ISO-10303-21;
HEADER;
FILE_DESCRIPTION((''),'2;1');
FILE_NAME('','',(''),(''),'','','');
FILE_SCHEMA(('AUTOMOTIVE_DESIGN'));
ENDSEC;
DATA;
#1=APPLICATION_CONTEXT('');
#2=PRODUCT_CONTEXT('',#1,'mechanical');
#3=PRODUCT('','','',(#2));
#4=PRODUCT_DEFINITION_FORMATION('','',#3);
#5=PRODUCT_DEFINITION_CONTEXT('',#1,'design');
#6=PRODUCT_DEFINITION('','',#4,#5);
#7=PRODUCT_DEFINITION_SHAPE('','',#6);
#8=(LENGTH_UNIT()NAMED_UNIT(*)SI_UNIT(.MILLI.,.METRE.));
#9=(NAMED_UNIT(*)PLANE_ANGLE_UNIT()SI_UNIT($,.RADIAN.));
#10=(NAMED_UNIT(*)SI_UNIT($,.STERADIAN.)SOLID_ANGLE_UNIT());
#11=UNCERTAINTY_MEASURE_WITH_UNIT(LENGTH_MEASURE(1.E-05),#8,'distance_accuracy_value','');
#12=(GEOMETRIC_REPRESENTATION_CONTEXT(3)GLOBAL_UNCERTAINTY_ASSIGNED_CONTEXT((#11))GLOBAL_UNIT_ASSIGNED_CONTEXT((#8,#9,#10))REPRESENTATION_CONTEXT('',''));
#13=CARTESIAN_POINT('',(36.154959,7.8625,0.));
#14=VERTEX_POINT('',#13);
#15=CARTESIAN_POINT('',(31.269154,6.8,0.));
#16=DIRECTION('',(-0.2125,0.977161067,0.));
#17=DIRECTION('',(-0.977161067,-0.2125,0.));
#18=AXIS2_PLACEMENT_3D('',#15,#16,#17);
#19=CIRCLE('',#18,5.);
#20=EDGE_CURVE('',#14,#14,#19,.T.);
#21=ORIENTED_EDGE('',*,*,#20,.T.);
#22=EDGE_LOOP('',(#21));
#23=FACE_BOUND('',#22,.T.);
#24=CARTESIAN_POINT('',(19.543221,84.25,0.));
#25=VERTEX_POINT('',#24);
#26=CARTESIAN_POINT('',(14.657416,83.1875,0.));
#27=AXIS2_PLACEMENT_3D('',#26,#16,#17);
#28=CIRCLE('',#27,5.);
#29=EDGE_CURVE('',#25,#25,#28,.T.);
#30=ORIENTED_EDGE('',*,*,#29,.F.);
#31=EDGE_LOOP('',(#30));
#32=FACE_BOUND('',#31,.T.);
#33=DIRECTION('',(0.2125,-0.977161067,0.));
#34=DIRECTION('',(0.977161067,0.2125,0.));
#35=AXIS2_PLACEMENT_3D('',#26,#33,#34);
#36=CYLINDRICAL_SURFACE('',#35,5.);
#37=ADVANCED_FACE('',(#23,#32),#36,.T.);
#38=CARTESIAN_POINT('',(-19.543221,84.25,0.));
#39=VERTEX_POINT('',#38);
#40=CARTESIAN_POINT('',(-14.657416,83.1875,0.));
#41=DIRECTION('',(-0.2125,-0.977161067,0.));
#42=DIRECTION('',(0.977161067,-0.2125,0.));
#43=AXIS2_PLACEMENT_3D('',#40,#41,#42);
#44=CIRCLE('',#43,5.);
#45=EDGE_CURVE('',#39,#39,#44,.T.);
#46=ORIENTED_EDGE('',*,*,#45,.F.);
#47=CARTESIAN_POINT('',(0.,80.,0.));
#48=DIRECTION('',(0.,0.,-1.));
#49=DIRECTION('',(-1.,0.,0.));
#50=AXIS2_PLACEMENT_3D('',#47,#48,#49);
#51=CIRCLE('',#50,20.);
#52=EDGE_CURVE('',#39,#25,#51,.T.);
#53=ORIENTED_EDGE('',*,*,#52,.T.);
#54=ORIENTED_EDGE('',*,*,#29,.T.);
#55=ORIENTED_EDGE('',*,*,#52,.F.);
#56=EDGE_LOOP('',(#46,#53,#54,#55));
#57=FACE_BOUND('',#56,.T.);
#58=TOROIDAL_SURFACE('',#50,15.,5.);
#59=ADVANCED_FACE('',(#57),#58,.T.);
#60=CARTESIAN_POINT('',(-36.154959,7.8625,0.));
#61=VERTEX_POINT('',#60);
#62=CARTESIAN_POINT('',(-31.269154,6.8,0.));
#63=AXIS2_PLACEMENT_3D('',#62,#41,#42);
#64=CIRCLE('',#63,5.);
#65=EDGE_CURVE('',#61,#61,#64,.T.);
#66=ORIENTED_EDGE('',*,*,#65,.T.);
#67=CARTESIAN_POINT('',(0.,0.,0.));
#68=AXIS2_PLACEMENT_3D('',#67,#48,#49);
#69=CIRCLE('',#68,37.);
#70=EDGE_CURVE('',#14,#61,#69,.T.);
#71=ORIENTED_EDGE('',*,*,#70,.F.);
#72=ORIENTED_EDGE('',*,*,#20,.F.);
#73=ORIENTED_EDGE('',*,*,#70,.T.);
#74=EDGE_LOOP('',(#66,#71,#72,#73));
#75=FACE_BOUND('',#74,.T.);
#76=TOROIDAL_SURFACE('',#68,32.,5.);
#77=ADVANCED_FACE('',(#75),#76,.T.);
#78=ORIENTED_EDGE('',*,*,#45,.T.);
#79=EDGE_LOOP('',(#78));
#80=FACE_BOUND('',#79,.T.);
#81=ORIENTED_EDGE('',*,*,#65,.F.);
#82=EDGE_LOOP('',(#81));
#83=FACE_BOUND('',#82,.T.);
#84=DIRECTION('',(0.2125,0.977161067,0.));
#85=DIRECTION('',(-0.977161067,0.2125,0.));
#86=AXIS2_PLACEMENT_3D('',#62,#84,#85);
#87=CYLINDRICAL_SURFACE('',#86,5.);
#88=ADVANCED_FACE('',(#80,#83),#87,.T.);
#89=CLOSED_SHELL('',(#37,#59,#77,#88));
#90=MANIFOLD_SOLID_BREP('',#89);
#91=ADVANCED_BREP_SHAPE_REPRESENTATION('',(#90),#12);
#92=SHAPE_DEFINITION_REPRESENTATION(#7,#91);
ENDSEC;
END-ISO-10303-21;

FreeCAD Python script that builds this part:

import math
import FreeCAD as App
import Part
import Sketcher
Q = App.Units.Quantity

doc = App.newDocument("Part")
body = doc.addObject("PartDesign::Body", "Body")

sketch1 = doc.addObject("Sketcher::SketchObject", "Sketch")
body.addObject(sketch1)
sketch1.Placement = App.Placement(App.Vector(-31.269154, 6.8, 0), App.Rotation(App.Vector(-0.977161067, 0.2125, 0), App.Vector(0, 0, -1.000000001), App.Vector(-0.2125, -0.977161067, 0), "ZXY"))
sketch1.addGeometry(Part.Circle(App.Vector(0, 0, 0), App.Vector(0, 0, 1), 5), False)
sketch1.addConstraint(Sketcher.Constraint("Coincident", 0, 3, -1, 1))
sketch1.addConstraint(Sketcher.Constraint("Diameter", 0, Q("10 mm")))

sketch2 = doc.addObject("Sketcher::SketchObject", "Sketch001")
body.addObject(sketch2)
sketch2.AttachmentSupport = (doc.XY_Plane, [""])
sketch2.MapMode = "FlatFace"
sketch2.addGeometry(Part.LineSegment(App.Vector(-14.657416, 83.1875, 0), App.Vector(-31.269154, 6.8, 0)), False)
sketch2.addGeometry(Part.ArcOfCircle(Part.Circle(App.Vector(0, 0, 0), App.Vector(0, 0, 1), 32), math.radians(167.731101), math.radians(372.268899)), False)
sketch2.addGeometry(Part.LineSegment(App.Vector(31.269154, 6.8, 0), App.Vector(14.657416, 83.1875, 0)), False)
sketch2.addGeometry(Part.ArcOfCircle(Part.Circle(App.Vector(0, 80, 0), App.Vector(0, 0, 1), 15), math.radians(12.268899), math.radians(167.731101)), False)
sketch2.addConstraint(Sketcher.Constraint("Tangent", 0, 2, 1, 1))
sketch2.addConstraint(Sketcher.Constraint("Tangent", 1, 2, 2, 1))
sketch2.addConstraint(Sketcher.Constraint("Tangent", 2, 2, 3, 1))
sketch2.addConstraint(Sketcher.Constraint("Tangent", 3, 2, 0, 1))
sketch2.addConstraint(Sketcher.Constraint("Coincident", 1, 3, -1, 1))
sketch2.addConstraint(Sketcher.Constraint("PointOnObject", 3, 3, -2))
sketch2.addConstraint(Sketcher.Constraint("Radius", 1, Q("32 mm")))
sketch2.addConstraint(Sketcher.Constraint("Radius", 3, Q("15 mm")))
sketch2.addConstraint(Sketcher.Constraint("DistanceY", -1, 1, 3, 3, Q("80 mm")))
doc.recompute()

additivepipe = doc.addObject("PartDesign::AdditivePipe", "AdditivePipe")
body.addObject(additivepipe)
additivepipe.Profile = sketch1
additivepipe.Spine = (sketch2, ["Edge1", "Edge2", "Edge3", "Edge4"])

doc.recompute()
